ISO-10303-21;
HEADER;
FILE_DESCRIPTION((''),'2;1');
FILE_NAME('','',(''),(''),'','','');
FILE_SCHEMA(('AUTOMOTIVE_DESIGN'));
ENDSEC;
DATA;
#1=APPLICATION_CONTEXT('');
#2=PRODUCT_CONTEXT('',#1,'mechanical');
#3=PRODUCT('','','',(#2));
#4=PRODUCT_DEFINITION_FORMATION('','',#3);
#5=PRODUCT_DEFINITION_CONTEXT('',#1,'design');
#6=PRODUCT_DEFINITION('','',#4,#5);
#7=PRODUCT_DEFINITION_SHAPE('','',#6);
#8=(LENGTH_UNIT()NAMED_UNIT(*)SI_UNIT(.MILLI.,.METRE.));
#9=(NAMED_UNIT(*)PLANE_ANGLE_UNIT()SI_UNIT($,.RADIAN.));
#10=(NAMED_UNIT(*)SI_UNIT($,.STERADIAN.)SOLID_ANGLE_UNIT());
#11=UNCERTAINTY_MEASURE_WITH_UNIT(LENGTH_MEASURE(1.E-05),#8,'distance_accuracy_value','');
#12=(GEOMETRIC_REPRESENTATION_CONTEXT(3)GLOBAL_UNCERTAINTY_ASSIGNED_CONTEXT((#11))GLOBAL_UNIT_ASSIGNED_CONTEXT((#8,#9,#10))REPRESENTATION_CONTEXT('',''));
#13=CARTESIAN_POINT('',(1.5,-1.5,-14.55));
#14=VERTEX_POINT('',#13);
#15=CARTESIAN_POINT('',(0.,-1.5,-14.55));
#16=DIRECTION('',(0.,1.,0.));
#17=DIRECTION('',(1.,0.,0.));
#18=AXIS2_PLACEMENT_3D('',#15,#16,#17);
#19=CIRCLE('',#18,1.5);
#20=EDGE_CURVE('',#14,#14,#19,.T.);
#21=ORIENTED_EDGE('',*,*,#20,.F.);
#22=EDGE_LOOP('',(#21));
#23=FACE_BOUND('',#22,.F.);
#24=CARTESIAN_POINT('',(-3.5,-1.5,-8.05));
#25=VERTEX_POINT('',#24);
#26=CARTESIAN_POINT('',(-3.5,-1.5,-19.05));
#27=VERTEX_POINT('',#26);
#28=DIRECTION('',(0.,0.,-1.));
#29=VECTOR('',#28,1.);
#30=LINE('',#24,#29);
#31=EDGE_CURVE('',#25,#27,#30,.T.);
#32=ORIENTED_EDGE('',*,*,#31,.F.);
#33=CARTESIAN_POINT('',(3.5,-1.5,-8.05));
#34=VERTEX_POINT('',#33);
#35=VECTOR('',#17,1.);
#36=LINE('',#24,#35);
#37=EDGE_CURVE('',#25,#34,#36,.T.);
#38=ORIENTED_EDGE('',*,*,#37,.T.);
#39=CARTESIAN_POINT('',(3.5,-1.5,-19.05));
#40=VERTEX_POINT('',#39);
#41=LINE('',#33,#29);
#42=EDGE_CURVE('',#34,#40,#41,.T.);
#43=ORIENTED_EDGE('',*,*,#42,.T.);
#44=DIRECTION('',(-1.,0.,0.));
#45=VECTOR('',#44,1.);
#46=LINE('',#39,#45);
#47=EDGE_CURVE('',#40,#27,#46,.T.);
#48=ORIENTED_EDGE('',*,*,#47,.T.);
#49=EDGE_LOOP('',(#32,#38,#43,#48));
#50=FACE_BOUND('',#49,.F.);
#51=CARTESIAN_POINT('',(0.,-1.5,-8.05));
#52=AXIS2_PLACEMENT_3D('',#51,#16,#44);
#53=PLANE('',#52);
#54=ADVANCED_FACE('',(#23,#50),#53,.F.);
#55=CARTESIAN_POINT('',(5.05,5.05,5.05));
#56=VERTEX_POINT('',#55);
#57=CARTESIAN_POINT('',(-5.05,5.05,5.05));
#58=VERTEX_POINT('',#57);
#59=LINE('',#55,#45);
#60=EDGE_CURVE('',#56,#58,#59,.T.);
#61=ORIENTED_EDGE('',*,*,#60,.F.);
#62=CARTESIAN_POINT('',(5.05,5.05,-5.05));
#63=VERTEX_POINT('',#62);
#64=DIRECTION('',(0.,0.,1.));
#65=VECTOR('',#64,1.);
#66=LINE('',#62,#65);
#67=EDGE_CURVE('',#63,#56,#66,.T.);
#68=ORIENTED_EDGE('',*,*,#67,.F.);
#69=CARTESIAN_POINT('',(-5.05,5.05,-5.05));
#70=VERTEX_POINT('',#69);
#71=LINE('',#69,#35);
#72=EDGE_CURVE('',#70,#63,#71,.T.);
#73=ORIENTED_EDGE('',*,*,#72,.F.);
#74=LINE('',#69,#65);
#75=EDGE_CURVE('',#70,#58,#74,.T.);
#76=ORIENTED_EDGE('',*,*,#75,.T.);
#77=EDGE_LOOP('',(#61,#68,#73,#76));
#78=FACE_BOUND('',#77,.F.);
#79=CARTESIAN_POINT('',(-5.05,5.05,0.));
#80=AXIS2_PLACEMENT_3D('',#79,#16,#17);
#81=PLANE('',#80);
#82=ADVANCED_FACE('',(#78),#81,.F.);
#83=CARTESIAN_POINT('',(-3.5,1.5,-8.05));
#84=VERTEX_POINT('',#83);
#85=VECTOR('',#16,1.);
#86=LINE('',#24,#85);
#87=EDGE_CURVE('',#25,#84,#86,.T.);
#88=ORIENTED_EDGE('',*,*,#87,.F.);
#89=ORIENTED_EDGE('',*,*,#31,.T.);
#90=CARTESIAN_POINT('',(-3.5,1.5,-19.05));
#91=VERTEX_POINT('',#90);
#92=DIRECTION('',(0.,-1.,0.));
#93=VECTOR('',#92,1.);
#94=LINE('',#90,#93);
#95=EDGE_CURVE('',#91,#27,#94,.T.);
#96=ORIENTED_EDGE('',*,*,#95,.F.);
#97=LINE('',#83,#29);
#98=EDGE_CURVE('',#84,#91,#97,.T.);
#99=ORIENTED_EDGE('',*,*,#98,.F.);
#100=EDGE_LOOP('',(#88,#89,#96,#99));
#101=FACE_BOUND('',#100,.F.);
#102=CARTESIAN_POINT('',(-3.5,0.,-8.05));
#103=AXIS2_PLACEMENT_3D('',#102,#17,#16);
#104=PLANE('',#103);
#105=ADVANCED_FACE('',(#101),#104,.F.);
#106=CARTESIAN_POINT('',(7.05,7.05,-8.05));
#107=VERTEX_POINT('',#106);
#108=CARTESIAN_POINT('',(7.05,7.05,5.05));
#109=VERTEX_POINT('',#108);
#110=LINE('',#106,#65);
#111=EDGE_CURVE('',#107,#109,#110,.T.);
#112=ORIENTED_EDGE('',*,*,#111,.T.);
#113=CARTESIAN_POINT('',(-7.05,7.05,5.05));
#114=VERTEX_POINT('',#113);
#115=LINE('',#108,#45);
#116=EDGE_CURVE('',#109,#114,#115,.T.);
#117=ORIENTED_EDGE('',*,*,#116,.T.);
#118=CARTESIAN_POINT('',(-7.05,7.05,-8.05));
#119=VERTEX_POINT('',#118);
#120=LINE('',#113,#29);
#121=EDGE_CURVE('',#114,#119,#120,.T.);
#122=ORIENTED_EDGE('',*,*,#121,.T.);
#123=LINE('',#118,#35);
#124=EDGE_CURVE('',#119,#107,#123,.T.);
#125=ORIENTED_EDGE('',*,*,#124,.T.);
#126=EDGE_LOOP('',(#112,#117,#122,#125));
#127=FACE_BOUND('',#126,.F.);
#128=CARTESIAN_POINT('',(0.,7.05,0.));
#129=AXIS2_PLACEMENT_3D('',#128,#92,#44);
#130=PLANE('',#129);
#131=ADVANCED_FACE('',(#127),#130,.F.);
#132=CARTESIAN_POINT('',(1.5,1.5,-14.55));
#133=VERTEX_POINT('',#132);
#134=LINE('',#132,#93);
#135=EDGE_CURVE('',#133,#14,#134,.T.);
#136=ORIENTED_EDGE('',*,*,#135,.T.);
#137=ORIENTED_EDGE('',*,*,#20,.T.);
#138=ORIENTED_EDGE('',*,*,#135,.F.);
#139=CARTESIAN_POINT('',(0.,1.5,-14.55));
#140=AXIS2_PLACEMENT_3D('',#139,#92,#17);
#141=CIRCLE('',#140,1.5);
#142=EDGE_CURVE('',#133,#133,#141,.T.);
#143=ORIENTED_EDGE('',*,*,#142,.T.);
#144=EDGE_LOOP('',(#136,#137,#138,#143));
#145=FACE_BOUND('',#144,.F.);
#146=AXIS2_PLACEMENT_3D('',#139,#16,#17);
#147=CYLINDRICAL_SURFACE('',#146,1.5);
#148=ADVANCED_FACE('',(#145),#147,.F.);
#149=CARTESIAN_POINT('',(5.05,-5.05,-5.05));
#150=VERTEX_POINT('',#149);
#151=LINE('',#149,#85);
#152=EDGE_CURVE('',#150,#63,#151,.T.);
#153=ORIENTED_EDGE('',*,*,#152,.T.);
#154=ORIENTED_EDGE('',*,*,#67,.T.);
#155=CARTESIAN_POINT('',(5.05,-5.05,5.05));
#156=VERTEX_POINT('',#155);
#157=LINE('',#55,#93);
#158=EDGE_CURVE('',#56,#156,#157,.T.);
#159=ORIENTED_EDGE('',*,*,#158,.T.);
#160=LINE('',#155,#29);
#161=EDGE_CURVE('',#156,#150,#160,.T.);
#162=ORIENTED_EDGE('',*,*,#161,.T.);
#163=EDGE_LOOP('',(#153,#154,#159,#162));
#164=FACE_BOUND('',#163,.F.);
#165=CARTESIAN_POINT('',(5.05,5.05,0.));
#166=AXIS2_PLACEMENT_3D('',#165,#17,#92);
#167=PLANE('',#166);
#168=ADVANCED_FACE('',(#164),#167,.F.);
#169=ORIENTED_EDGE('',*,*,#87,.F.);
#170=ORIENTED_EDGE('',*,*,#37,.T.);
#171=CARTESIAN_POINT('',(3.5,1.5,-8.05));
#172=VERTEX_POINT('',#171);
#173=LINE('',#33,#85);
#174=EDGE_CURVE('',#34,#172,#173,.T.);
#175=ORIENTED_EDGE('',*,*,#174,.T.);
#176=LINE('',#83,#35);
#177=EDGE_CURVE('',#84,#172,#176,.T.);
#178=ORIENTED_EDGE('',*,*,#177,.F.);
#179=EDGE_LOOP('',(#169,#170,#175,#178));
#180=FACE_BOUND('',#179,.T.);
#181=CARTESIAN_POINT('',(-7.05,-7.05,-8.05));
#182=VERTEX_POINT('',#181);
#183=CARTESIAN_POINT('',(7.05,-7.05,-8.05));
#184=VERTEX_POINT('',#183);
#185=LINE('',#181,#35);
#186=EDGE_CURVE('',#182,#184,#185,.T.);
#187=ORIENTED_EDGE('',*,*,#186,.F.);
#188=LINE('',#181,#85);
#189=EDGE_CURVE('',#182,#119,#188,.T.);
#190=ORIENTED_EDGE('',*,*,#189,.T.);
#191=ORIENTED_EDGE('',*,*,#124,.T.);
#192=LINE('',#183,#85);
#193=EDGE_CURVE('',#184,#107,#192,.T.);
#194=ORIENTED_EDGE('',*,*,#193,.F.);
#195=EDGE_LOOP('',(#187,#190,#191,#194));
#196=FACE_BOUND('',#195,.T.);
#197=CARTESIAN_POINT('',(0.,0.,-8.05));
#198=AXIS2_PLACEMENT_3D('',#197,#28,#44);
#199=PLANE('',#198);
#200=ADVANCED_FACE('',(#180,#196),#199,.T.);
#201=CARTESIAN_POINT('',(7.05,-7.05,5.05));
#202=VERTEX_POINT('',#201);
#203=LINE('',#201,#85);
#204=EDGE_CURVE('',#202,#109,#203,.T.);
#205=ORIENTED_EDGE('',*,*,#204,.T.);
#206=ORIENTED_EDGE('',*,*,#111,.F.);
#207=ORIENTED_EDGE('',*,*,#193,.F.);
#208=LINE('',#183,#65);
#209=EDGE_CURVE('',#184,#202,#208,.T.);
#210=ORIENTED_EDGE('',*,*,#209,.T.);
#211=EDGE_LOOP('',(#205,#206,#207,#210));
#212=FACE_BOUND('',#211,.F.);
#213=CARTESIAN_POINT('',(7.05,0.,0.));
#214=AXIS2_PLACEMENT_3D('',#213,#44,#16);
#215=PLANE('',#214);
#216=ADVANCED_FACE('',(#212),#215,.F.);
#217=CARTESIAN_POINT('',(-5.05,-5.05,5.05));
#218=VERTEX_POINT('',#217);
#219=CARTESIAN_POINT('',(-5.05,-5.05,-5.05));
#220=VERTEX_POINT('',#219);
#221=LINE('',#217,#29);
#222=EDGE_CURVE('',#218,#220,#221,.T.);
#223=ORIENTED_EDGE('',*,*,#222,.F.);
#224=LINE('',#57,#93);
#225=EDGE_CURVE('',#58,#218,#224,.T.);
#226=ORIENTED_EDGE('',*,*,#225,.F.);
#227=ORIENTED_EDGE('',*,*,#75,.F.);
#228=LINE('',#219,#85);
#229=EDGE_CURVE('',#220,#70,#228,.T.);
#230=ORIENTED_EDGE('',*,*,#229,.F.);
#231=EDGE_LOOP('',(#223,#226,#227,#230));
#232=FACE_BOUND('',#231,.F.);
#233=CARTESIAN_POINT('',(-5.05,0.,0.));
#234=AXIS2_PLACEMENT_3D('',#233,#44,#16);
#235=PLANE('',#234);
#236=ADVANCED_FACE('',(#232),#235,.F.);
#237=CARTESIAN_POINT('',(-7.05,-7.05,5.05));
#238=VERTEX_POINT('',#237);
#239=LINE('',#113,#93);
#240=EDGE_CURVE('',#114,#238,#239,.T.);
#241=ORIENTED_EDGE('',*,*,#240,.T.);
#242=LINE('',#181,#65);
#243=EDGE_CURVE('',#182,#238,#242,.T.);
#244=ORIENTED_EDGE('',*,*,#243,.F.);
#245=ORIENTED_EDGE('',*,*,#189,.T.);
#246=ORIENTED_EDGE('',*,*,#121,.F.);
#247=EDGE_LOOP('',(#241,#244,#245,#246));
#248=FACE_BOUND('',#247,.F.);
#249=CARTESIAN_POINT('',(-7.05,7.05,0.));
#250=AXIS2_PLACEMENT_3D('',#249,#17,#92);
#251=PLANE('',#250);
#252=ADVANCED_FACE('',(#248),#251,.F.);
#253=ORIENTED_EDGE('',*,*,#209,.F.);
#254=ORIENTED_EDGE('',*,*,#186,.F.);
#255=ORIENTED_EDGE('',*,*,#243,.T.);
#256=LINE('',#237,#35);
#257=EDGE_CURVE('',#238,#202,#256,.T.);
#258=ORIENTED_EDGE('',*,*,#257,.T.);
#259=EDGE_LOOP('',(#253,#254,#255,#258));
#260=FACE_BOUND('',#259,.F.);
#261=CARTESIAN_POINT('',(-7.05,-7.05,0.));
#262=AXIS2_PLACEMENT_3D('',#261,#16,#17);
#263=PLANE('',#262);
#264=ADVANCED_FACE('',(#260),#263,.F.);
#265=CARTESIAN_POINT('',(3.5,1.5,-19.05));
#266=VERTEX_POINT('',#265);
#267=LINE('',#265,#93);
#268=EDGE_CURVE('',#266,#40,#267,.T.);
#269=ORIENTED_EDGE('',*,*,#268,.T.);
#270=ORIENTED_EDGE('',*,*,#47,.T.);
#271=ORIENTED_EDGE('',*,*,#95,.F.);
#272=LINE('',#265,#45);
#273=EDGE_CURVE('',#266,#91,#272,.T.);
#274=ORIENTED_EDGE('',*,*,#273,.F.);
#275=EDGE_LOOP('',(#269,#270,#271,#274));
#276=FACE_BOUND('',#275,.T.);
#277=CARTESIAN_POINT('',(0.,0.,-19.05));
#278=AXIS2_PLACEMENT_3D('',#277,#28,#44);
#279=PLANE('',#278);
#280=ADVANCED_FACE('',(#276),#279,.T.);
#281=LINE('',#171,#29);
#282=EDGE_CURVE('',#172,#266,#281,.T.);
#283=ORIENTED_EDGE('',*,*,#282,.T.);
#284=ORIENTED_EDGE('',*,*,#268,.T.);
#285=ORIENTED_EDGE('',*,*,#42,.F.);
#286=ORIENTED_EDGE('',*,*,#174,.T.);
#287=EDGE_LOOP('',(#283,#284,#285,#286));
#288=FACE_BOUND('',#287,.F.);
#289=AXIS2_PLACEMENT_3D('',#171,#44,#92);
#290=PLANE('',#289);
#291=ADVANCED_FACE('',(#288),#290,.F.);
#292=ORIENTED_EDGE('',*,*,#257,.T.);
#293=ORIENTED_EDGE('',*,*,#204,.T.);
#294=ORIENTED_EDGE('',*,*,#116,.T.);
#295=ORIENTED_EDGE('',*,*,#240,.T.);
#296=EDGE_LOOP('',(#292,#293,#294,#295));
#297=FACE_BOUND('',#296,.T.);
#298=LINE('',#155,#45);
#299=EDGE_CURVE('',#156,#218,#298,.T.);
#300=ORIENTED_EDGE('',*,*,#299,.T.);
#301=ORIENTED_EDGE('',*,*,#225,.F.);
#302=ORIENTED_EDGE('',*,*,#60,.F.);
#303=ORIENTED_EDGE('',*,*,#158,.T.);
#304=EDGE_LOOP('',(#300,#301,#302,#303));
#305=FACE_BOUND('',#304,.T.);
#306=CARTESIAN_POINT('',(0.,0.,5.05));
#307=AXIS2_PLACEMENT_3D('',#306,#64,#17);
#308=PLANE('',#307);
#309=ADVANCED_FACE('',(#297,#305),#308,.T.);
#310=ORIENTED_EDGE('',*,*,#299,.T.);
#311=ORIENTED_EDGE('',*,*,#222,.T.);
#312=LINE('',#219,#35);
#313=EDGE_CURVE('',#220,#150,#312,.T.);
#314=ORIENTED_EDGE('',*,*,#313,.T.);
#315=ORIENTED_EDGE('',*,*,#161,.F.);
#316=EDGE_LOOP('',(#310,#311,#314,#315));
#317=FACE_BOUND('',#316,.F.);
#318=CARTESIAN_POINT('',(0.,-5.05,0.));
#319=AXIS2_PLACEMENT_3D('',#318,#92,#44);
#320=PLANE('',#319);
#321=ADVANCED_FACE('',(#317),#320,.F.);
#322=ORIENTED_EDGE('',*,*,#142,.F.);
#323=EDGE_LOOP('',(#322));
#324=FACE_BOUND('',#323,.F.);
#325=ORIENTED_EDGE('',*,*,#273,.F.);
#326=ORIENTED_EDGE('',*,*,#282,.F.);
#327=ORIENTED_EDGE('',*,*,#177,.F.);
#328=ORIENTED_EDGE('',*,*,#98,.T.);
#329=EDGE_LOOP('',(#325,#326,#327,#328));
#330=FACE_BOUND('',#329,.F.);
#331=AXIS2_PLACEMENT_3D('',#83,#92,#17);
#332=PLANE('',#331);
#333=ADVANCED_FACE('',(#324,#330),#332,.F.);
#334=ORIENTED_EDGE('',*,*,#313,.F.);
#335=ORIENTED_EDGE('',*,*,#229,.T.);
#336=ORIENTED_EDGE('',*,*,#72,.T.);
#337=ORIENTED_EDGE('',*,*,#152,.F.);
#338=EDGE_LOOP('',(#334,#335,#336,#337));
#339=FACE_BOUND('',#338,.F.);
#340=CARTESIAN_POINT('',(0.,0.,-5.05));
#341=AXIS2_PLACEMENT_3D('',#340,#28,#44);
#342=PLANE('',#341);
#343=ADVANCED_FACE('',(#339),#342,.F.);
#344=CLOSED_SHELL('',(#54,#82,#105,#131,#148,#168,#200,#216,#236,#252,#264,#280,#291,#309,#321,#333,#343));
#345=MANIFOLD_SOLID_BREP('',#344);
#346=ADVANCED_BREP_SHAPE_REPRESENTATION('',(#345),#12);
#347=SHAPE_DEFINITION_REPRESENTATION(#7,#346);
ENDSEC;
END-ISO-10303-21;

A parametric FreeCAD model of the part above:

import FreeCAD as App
import Part
import Sketcher
from FreeCAD import Vector

doc = App.newDocument("Part")
body = doc.addObject("PartDesign::Body", "Body")

sketch1 = doc.addObject("Sketcher::SketchObject", "Sketch")
body.addObject(sketch1)
sketch1.AttachmentSupport = (doc.XY_Plane, [""])
sketch1.MapMode = "FlatFace"
sketch1.addGeometry([
    Part.LineSegment(Vector(-7, 7, 0), Vector(-7, -7, 0)),
    Part.LineSegment(Vector(-7, -7, 0), Vector(7, -7, 0)),
    Part.LineSegment(Vector(7, -7, 0), Vector(7, 7, 0)),
    Part.LineSegment(Vector(7, 7, 0), Vector(-7, 7, 0)),
    Part.LineSegment(Vector(-5, 5, 0), Vector(5, 5, 0)),
    Part.LineSegment(Vector(5, 5, 0), Vector(5, -5, 0)),
    Part.LineSegment(Vector(5, -5, 0), Vector(-5, -5, 0)),
    Part.LineSegment(Vector(-5, -5, 0), Vector(-5, 5, 0)),
], False)
sketch1.addConstraint([
    Sketcher.Constraint("Coincident", 0, 2, 1, 1),
    Sketcher.Constraint("Coincident", 1, 2, 2, 1),
    Sketcher.Constraint("Coincident", 2, 2, 3, 1),
    Sketcher.Constraint("Coincident", 3, 2, 0, 1),
    Sketcher.Constraint("Coincident", 4, 2, 5, 1),
    Sketcher.Constraint("Coincident", 5, 2, 6, 1),
    Sketcher.Constraint("Coincident", 6, 2, 7, 1),
    Sketcher.Constraint("Coincident", 7, 2, 4, 1),
    Sketcher.Constraint("Vertical", 0),
    Sketcher.Constraint("Horizontal", 1),
    Sketcher.Constraint("Vertical", 2),
    Sketcher.Constraint("Horizontal", 3),
    Sketcher.Constraint("Horizontal", 4),
    Sketcher.Constraint("Vertical", 5),
    Sketcher.Constraint("Horizontal", 6),
    Sketcher.Constraint("Vertical", 7),
    Sketcher.Constraint("Symmetric", 0, 2, 2, 2, -1, 1),
    Sketcher.Constraint("Symmetric", 4, 2, 6, 2, -1, 1),
    Sketcher.Constraint("Equal", 3, 0),
    Sketcher.Constraint("Equal", 6, 5),
    Sketcher.Constraint("DistanceX", 4, 1, 4, 2, 10.1),
    Sketcher.Constraint("DistanceX", 4, 2, 2, 2, 2.0),
])
pad1 = doc.addObject("PartDesign::Pad", "Pad")
body.addObject(pad1)
pad1.Profile = sketch1
pad1.Length = 10.1
pad1.Midplane = True

sketch2 = doc.addObject("Sketcher::SketchObject", "Sketch001")
body.addObject(sketch2)
sketch2.AttachmentSupport = (doc.XY_Plane, [""])
sketch2.MapMode = "FlatFace"
sketch2.AttachmentOffset = App.Placement(Vector(0, 0, -5.05), App.Rotation())
sketch2.addGeometry([
    Part.LineSegment(Vector(7, -7, 0), Vector(-7, -7, 0)),
    Part.LineSegment(Vector(-7, -7, 0), Vector(-7, 7, 0)),
    Part.LineSegment(Vector(-7, 7, 0), Vector(7, 7, 0)),
    Part.LineSegment(Vector(7, 7, 0), Vector(7, -7, 0)),
], False)
sketch2.addConstraint([
    Sketcher.Constraint("Coincident", 0, 2, 1, 1),
    Sketcher.Constraint("Coincident", 1, 2, 2, 1),
    Sketcher.Constraint("Coincident", 2, 2, 3, 1),
    Sketcher.Constraint("Coincident", 3, 2, 0, 1),
    Sketcher.Constraint("Horizontal", 0),
    Sketcher.Constraint("Vertical", 1),
    Sketcher.Constraint("Horizontal", 2),
    Sketcher.Constraint("Vertical", 3),
    Sketcher.Constraint("Symmetric", 0, 2, 2, 2, -1, 1),
    Sketcher.Constraint("Equal", 2, 1),
    Sketcher.Constraint("DistanceX", 0, 2, 0, 1, 14.1),
])
pad2 = doc.addObject("PartDesign::Pad", "Pad001")
body.addObject(pad2)
pad2.Profile = sketch2
pad2.Length = 3
pad2.Reversed = True

sketch3 = doc.addObject("Sketcher::SketchObject", "Sketch002")
body.addObject(sketch3)
sketch3.AttachmentSupport = (doc.XY_Plane, [""])
sketch3.MapMode = "FlatFace"
sketch3.AttachmentOffset = App.Placement(Vector(0, 0, -8.05), App.Rotation())
sketch3.addGeometry([
    Part.LineSegment(Vector(-3.5, 1.5, 0), Vector(3.5, 1.5, 0)),
    Part.LineSegment(Vector(3.5, 1.5, 0), Vector(3.5, -1.5, 0)),
    Part.LineSegment(Vector(3.5, -1.5, 0), Vector(-3.5, -1.5, 0)),
    Part.LineSegment(Vector(-3.5, -1.5, 0), Vector(-3.5, 1.5, 0)),
], False)
sketch3.addConstraint([
    Sketcher.Constraint("Coincident", 0, 2, 1, 1),
    Sketcher.Constraint("Coincident", 1, 2, 2, 1),
    Sketcher.Constraint("Coincident", 2, 2, 3, 1),
    Sketcher.Constraint("Coincident", 3, 2, 0, 1),
    Sketcher.Constraint("Horizontal", 0),
    Sketcher.Constraint("Vertical", 1),
    Sketcher.Constraint("Horizontal", 2),
    Sketcher.Constraint("Vertical", 3),
    Sketcher.Constraint("Symmetric", 0, 2, 2, 2, -1, 1),
    Sketcher.Constraint("DistanceX", 0, 1, 0, 2, 7.0),
    Sketcher.Constraint("DistanceY", 1, 2, 1, 1, 3.0),
])
pad3 = doc.addObject("PartDesign::Pad", "Pad002")
body.addObject(pad3)
pad3.Profile = sketch3
pad3.Length = 11
pad3.Reversed = True

sketch4 = doc.addObject("Sketcher::SketchObject", "Sketch003")
body.addObject(sketch4)
sketch4.AttachmentSupport = (doc.XZ_Plane, [""])
sketch4.MapMode = "FlatFace"
sketch4.AttachmentOffset = App.Placement(Vector(0, 0, -1.5), App.Rotation())
sketch4.addGeometry(Part.Circle(Vector(0, -14.6, 0), Vector(0, 0, 1), 1.5), False)
sketch4.addConstraint([
    Sketcher.Constraint("PointOnObject", 0, 3, -2),
    Sketcher.Constraint("Diameter", 0, 3.0),
    Sketcher.Constraint("DistanceY", 0, 3, -1, 1, 14.55),
])
pocket1 = doc.addObject("PartDesign::Pocket", "Pocket")
body.addObject(pocket1)
pocket1.Profile = sketch4
pocket1.Length = 3
pocket1.Reversed = True

doc.recompute()
